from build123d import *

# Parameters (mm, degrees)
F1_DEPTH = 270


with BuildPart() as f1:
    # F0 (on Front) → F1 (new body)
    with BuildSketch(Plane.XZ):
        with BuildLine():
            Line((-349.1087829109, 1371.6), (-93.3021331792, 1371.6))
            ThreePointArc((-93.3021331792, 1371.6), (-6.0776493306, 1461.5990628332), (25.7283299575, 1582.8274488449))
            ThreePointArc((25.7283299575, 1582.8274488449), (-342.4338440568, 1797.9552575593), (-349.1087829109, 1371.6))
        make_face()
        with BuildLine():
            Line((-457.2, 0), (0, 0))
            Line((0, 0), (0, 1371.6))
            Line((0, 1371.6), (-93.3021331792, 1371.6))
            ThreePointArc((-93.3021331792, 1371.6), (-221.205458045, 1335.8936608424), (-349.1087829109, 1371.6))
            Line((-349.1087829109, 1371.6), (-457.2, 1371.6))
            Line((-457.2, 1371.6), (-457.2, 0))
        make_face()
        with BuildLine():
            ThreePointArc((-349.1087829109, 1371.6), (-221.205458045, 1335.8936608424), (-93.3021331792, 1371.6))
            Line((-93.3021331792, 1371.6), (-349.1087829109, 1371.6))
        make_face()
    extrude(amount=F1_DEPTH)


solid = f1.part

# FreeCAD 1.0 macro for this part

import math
import FreeCAD as App
import Part
import Sketcher
Q = App.Units.Quantity

doc = App.newDocument("Part")
body = doc.addObject("PartDesign::Body", "Body")

# Sketch on XZ plane
sketch1 = body.newObject("Sketcher::SketchObject", "Sketch")
sketch1.AttachmentSupport = (doc.getObject("XZ_Plane"), [""])
sketch1.MapMode = "FlatFace"
sketch1.addGeometry([
    Part.ArcOfCircle(Part.Circle(App.Vector(-221.205458, 1582.827449, 0), App.Vector(0, 0, 1), 246.933788), math.radians(-58.804082), math.radians(238.804082)),  # 0
    Part.LineSegment(App.Vector(-349.108783, 1371.6, 0), App.Vector(-457.2, 1371.6, 0)),  # 1
    Part.LineSegment(App.Vector(-457.2, 1371.6, 0), App.Vector(-457.2, 0, 0)),  # 2
    Part.LineSegment(App.Vector(-457.2, 0, 0), App.Vector(0, 0, 0)),  # 3
    Part.LineSegment(App.Vector(0, 0, 0), App.Vector(0, 1371.6, 0)),  # 4
    Part.LineSegment(App.Vector(0, 1371.6, 0), App.Vector(-93.302133, 1371.6, 0)),  # 5
], False)
sketch1.addConstraint([
    Sketcher.Constraint("Coincident", 0, 2, 1, 1),
    Sketcher.Constraint("Coincident", 1, 2, 2, 1),
    Sketcher.Constraint("Coincident", 2, 2, 3, 1),
    Sketcher.Constraint("Coincident", 3, 2, 4, 1),
    Sketcher.Constraint("Coincident", 4, 2, 5, 1),
    Sketcher.Constraint("Coincident", 5, 2, 0, 1),
    Sketcher.Constraint("Horizontal", 1),
    Sketcher.Constraint("Vertical", 2),
    Sketcher.Constraint("Horizontal", 3),
    Sketcher.Constraint("Vertical", 4),
    Sketcher.Constraint("Horizontal", 5),
    Sketcher.Constraint("Coincident", 3, 2, -1, 1),
    Sketcher.Constraint("Horizontal", 1, 2, 4, 2),
    Sketcher.Constraint("DistanceX", 3, 1, 3, 2, Q("18 in")),
    Sketcher.Constraint("DistanceY", 2, 2, 2, 1, Q("54 in")),
    Sketcher.Constraint("Radius", 0, 246.933788),
    Sketcher.Constraint("DistanceX", 1, 2, 1, 1, 108.091217),
    Sketcher.Constraint("DistanceX", 5, 2, 5, 1, 93.302133),
])
pad1 = body.newObject("PartDesign::Pad", "Pad")
pad1.Profile = sketch1
pad1.Length = 270

doc.recompute()
